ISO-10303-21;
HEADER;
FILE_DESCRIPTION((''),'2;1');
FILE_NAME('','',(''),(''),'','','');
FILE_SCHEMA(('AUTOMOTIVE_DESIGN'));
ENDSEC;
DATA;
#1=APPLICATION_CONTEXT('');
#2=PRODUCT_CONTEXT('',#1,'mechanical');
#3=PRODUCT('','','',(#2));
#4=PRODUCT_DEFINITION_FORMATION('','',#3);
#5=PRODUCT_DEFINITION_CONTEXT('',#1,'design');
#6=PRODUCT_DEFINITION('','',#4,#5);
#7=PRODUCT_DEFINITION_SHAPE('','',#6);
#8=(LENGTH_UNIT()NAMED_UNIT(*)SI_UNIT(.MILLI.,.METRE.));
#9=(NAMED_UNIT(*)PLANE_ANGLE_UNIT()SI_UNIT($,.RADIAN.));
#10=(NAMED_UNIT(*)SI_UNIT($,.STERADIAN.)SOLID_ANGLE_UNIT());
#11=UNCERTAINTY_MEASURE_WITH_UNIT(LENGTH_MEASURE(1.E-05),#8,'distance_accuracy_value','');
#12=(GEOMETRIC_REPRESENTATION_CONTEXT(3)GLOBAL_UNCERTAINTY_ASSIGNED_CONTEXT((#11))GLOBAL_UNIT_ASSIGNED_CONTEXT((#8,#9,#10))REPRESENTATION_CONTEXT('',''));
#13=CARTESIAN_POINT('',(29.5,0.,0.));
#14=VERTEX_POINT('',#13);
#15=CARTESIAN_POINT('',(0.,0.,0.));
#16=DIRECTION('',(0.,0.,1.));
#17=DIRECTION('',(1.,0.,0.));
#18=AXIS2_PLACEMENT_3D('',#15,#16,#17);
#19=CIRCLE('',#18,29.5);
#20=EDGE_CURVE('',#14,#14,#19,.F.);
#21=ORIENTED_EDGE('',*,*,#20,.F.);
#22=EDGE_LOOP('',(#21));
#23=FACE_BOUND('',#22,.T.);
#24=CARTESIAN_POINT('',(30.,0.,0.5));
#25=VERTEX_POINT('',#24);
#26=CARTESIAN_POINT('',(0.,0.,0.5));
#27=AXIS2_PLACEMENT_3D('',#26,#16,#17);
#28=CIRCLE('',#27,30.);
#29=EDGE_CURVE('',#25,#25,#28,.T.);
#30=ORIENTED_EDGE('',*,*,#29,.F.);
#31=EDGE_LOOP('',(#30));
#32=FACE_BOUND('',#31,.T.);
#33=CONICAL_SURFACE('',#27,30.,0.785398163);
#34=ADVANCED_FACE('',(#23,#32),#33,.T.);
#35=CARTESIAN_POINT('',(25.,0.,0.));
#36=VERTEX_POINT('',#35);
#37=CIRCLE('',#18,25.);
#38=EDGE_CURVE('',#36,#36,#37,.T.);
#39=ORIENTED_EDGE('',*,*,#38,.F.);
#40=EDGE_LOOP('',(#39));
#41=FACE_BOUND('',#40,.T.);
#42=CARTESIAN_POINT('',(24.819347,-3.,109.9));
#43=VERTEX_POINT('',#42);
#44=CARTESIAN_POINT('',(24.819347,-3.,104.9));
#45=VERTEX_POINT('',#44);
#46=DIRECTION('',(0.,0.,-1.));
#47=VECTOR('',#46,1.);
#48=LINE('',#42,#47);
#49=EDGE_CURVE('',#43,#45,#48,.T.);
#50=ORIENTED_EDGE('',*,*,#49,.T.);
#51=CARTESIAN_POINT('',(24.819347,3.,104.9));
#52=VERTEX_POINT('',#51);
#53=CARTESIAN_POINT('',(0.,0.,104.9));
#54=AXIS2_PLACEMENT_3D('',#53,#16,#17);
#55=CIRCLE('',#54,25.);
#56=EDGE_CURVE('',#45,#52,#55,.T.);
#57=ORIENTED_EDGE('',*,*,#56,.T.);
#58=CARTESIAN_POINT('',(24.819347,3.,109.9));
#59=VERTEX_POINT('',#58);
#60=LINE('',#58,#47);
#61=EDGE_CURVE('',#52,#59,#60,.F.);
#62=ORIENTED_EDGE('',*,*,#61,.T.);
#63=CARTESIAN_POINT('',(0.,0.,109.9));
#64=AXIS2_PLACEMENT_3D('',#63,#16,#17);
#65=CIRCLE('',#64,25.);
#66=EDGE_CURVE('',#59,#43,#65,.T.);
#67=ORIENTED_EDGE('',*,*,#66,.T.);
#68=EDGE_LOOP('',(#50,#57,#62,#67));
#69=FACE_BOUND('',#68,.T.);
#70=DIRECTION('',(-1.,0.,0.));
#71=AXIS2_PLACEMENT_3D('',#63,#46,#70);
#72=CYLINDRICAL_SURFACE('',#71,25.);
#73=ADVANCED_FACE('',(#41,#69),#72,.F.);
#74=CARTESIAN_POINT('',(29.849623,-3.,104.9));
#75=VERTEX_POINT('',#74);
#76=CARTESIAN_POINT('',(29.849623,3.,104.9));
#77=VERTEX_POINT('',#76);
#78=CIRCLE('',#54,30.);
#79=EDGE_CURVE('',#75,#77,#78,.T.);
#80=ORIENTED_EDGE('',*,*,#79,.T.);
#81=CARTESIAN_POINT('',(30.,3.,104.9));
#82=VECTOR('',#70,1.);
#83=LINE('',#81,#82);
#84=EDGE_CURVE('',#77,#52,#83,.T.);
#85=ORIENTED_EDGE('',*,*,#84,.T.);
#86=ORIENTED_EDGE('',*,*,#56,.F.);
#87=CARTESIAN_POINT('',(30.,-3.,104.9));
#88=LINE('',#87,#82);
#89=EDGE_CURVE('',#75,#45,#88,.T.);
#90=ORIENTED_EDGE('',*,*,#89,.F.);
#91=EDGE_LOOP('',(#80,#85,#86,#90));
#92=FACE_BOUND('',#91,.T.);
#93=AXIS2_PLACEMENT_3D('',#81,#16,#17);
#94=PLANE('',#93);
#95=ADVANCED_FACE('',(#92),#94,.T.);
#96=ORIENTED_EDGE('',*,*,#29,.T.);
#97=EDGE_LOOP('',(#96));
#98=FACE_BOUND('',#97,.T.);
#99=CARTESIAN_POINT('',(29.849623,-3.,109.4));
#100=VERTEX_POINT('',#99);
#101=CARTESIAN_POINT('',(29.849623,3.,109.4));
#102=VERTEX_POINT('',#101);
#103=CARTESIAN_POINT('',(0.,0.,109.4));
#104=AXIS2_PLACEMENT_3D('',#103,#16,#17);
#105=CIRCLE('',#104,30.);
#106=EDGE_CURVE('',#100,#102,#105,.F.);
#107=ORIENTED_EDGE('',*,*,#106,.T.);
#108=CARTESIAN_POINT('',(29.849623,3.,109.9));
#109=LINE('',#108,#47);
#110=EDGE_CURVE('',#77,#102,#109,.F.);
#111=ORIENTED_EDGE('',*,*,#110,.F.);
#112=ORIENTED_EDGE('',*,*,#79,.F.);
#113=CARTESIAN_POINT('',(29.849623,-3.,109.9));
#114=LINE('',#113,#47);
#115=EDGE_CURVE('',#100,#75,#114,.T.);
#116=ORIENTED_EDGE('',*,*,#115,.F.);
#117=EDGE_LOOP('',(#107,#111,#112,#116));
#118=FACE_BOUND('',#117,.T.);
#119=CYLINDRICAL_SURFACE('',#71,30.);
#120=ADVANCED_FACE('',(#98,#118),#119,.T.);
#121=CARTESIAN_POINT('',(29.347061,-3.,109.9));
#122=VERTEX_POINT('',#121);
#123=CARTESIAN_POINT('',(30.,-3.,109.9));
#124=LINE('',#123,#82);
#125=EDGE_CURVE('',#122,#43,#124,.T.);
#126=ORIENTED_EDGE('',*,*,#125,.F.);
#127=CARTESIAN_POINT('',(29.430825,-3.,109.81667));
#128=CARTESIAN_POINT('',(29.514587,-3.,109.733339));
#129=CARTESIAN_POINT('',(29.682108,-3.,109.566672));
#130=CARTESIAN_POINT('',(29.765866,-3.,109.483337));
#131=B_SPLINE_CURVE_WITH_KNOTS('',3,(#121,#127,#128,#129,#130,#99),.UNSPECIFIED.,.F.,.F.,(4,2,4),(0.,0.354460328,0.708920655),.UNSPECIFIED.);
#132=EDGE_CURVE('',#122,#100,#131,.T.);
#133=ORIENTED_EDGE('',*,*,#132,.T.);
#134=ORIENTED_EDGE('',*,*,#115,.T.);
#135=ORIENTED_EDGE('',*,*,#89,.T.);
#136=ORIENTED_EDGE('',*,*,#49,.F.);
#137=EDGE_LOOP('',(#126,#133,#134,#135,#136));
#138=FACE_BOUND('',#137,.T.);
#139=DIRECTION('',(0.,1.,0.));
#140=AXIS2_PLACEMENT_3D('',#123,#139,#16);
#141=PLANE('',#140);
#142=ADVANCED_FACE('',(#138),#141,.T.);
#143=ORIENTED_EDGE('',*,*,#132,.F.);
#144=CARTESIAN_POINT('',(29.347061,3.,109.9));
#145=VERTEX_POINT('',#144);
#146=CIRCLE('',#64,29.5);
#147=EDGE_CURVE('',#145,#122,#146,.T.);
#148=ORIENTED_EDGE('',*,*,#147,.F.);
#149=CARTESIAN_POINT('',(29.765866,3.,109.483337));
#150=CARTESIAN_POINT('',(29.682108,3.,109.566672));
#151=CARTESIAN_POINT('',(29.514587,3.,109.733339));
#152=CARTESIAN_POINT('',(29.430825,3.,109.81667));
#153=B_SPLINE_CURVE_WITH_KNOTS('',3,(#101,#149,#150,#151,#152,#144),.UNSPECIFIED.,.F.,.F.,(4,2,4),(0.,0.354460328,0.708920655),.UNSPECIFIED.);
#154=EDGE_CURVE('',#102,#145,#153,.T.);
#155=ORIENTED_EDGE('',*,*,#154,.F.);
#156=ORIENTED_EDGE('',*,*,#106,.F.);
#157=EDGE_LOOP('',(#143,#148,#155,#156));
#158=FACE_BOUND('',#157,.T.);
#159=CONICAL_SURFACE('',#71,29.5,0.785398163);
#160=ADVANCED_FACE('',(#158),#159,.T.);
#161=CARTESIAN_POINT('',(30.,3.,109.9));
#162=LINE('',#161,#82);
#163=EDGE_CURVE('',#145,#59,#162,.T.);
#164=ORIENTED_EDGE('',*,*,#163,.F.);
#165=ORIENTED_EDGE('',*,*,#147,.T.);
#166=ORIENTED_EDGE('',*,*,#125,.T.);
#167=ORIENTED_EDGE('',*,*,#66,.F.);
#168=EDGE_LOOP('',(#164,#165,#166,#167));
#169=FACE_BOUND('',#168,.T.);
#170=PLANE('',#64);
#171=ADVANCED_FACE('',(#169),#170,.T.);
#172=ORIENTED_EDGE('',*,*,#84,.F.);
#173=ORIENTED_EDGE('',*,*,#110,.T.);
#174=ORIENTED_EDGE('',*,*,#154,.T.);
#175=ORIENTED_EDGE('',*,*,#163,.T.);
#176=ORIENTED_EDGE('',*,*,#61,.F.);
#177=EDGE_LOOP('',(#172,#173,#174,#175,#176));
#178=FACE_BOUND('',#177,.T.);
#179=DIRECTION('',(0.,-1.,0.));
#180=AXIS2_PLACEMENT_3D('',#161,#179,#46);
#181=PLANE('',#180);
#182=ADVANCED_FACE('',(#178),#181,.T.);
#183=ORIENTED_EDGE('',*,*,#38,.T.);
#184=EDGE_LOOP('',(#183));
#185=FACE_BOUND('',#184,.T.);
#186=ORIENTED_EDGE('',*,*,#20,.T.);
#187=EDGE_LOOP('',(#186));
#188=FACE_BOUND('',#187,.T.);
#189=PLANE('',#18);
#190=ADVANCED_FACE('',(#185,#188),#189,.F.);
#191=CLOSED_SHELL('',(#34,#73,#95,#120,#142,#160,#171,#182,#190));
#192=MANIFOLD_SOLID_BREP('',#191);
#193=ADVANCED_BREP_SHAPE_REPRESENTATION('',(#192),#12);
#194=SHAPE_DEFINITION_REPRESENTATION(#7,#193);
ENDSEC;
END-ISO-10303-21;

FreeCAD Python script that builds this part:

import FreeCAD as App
import Part
import Sketcher
from FreeCAD import Vector
Q = App.Units.Quantity


def edges_at(feature, points):
    """Names of the edges that pass closest to the given points."""
    edges = feature.Shape.Edges
    near = lambda p: min(range(len(edges)), key=lambda i: edges[i].distToShape(Part.Vertex(*p))[0])
    return sorted({f"Edge{near(p) + 1}" for p in points})


def add_polygon(sketch, points):
    """Adds a closed chain of lines whose ends are joined by coincident constraints."""
    first, n = sketch.GeometryCount, len(points)
    for a, b in zip(points, points[1:] + points[:1]):
        sketch.addGeometry(Part.LineSegment(App.Vector(*a, 0), App.Vector(*b, 0)), False)
    for i in range(n):
        sketch.addConstraint(Sketcher.Constraint("Coincident", first + i, 2, first + (i + 1) % n, 1))

doc = App.newDocument("Part")
body = doc.addObject("PartDesign::Body", "Body")

# Sketch on XY plane
sketch1 = body.newObject("Sketcher::SketchObject", "Sketch")
sketch1.AttachmentSupport = (doc.getObject("XY_Plane"), [""])
sketch1.MapMode = "FlatFace"
sketch1.addGeometry([
    Part.Circle(Vector(0, 0, 0), Vector(0, 0, 1), 30),
    Part.Circle(Vector(0, 0, 0), Vector(0, 0, 1), 25),
], False)
sketch1.addConstraint([
    Sketcher.Constraint("Coincident", 0, 3, -1, 1),
    Sketcher.Constraint("Coincident", 1, 3, -1, 1),
    Sketcher.Constraint("Diameter", 0, Q("60 mm")),
    Sketcher.Constraint("Diameter", 1, Q("50 mm")),
])
pad1 = body.newObject("PartDesign::Pad", "Pad")
pad1.Profile = sketch1
pad1.Length = 109.9

# Sketch on YZ plane
sketch2 = body.newObject("Sketcher::SketchObject", "Sketch001")
sketch2.AttachmentSupport = (doc.getObject("YZ_Plane"), [""])
sketch2.MapMode = "FlatFace"
add_polygon(sketch2, [(3, 109.9), (-3, 109.9), (-3, 104.9), (3, 104.9)])  # lines 0-3
sketch2.addConstraint([
    Sketcher.Constraint("Horizontal", 0),
    Sketcher.Constraint("Vertical", 1),
    Sketcher.Constraint("Horizontal", 2),
    Sketcher.Constraint("Vertical", 3),
    Sketcher.Constraint("DistanceX", 0, 2, 0, 1, Q("6 mm")),
    Sketcher.Constraint("DistanceY", 1, 2, 1, 1, Q("5 mm")),
    Sketcher.Constraint("DistanceX", 0, 2, -1, 1, Q("3 mm")),
    Sketcher.Constraint("DistanceY", -1, 1, 0, 2, Q("109.9 mm")),
])
pocket1 = body.newObject("PartDesign::Pocket", "Pocket")
pocket1.Profile = sketch2
pocket1.Type = "ThroughAll"
pocket1.Reversed = True
doc.recompute()

chamfer = body.newObject("PartDesign::Chamfer", "Chamfer")
chamfer.Base = (pocket1, edges_at(pocket1, [(-30, 0, 109.9), (-30, 0, 0)]))
chamfer.Size = 0.5

doc.recompute()
